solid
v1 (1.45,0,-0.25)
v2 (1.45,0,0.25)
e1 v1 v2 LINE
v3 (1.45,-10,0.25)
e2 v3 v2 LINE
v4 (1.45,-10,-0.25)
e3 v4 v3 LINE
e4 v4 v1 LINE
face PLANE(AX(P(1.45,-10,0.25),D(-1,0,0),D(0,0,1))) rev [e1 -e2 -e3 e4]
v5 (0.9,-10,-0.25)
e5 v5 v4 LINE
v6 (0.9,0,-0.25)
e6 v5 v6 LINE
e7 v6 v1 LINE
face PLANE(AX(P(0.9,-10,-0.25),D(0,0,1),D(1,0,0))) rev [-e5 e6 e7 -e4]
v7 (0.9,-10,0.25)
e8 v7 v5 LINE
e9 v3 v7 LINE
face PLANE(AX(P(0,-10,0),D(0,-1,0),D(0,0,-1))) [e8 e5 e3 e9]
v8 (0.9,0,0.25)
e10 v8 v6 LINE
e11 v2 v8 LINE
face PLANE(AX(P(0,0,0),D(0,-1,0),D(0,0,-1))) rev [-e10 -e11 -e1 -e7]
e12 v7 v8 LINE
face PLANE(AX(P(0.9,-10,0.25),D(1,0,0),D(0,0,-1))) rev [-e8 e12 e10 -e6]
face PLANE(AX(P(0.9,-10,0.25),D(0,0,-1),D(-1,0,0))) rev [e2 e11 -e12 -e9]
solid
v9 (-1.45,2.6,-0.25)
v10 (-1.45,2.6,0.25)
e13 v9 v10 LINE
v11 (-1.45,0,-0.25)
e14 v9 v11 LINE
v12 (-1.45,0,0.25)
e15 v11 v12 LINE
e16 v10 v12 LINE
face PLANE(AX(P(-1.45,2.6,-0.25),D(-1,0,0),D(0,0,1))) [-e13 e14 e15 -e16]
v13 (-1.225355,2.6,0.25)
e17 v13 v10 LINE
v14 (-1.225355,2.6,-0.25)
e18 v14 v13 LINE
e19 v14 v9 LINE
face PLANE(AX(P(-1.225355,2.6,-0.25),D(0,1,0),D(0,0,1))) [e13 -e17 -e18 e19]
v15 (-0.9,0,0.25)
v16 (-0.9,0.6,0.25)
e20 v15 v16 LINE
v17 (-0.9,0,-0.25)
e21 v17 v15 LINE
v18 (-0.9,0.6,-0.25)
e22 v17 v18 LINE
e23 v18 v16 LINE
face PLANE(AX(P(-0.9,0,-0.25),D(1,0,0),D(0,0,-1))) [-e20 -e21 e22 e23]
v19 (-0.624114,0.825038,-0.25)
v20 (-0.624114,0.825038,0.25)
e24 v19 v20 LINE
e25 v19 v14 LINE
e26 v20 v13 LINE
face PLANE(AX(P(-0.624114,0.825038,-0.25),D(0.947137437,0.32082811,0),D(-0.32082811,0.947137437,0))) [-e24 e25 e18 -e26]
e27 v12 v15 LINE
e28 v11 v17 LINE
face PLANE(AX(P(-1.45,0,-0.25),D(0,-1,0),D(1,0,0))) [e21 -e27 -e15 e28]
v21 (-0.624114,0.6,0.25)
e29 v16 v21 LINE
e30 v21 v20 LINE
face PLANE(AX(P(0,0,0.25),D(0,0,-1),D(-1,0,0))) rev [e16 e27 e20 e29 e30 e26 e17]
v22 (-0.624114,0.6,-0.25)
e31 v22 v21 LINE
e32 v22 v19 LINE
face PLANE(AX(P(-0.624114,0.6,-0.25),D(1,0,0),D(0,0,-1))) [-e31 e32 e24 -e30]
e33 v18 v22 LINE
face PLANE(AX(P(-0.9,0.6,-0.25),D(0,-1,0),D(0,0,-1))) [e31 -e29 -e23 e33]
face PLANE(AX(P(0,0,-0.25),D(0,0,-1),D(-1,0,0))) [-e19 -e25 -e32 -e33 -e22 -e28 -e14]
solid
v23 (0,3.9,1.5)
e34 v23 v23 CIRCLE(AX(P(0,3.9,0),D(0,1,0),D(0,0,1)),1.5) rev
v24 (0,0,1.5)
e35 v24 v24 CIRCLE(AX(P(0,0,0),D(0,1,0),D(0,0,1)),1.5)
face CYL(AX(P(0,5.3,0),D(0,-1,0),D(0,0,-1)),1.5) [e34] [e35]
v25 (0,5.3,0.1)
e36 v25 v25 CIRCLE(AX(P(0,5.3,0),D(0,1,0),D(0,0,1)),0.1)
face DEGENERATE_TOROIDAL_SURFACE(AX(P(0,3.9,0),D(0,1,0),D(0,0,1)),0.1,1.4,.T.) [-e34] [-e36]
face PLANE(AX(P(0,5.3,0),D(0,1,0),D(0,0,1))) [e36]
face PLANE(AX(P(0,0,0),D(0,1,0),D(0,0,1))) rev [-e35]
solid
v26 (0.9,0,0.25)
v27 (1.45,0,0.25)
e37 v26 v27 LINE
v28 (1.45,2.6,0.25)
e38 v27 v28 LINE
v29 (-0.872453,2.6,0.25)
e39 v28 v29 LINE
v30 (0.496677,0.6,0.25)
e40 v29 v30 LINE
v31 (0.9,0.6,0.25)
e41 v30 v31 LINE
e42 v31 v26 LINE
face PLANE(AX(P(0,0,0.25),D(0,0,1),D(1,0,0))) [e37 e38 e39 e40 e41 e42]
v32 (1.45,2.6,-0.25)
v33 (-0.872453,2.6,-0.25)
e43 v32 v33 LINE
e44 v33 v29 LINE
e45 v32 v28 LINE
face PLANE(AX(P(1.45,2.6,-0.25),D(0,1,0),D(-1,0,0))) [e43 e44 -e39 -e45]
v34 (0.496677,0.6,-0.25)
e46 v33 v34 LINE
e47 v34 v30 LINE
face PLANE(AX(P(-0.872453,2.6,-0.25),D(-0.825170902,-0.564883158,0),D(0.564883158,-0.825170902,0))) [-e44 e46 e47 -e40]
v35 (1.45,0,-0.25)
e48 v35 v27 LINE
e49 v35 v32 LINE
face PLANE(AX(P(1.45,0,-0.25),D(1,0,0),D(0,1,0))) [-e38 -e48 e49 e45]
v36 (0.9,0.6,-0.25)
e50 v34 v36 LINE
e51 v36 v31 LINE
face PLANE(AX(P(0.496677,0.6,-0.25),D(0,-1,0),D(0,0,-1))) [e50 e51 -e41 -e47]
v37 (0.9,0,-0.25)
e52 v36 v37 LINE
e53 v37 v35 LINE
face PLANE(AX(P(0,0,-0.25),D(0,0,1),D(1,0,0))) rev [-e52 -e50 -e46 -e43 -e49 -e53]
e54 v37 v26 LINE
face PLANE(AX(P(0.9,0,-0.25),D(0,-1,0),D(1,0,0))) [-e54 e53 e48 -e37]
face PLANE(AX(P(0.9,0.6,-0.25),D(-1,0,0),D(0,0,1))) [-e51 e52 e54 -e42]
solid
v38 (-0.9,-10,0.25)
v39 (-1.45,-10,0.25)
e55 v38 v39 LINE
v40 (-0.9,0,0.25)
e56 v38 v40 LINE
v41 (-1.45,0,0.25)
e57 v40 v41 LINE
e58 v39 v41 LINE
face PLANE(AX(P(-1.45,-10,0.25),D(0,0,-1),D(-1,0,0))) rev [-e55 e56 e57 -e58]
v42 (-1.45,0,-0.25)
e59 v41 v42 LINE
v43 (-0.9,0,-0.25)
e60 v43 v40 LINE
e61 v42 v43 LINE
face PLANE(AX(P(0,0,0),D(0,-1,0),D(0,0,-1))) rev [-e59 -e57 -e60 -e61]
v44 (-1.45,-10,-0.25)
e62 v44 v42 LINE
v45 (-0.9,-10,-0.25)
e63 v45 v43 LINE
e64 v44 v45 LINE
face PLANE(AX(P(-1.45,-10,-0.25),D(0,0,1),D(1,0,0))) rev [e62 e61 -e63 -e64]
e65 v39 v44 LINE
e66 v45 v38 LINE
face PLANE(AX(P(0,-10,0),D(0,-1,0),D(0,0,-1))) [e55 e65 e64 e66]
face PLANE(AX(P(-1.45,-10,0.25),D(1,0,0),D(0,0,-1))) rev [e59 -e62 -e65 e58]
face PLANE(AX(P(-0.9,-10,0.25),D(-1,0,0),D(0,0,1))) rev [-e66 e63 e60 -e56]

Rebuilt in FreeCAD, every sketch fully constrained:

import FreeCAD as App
import Part
import Sketcher

V = App.Vector
Q = App.Units.Quantity


def edges_at(feature, points):
    """Names of the edges that pass closest to the given points."""
    edges = feature.Shape.Edges
    near = lambda p: min(range(len(edges)), key=lambda i: edges[i].distToShape(Part.Vertex(*p))[0])
    return sorted({f"Edge{near(p) + 1}" for p in points})

doc = App.newDocument("Part")
body = doc.addObject("PartDesign::Body", "Body")

sketch1 = body.newObject("Sketcher::SketchObject", "Sketch")
sketch1.AttachmentSupport = (doc.getObject("XZ_Plane"), [""])
sketch1.MapMode = "FlatFace"
sketch1.addGeometry(Part.Circle(V(0, 0, 0), V(0, 0, 1), 1.5), False)
sketch1.addConstraint(Sketcher.Constraint("Coincident", 0, 3, -1, 1))
sketch1.addConstraint(Sketcher.Constraint("Diameter", 0, Q("3 mm")))
pad1 = body.newObject("PartDesign::Pad", "Pad")
pad1.Profile = sketch1
pad1.Length = 5.3
pad1.Reversed = True
doc.recompute()

fillet = body.newObject("PartDesign::Fillet", "Fillet")
fillet.Base = (pad1, edges_at(pad1, [(-1.5, 5.3, 0)]))
fillet.Radius = 1.4
body2 = doc.addObject("PartDesign::Body", "Body001")

sketch2 = body2.newObject("Sketcher::SketchObject", "Sketch001")
sketch2.AttachmentSupport = (doc.getObject("XY_Plane001"), [""])
sketch2.MapMode = "FlatFace"
sketch2.addGeometry(Part.LineSegment(V(-1.45, 2.6, 0), V(-1.45, 0, 0)), False)
sketch2.addGeometry(Part.LineSegment(V(-1.45, 0, 0), V(-0.9, 0, 0)), False)
sketch2.addGeometry(Part.LineSegment(V(-0.9, 0, 0), V(-0.9, 0.6, 0)), False)
sketch2.addGeometry(Part.LineSegment(V(-0.9, 0.6, 0), V(-0.624114, 0.6, 0)), False)
sketch2.addGeometry(Part.LineSegment(V(-0.624114, 0.6, 0), V(-0.624114, 0.825038, 0)), False)
sketch2.addGeometry(Part.LineSegment(V(-0.624114, 0.825038, 0), V(-1.225355, 2.6, 0)), False)
sketch2.addGeometry(Part.LineSegment(V(-1.225355, 2.6, 0), V(-1.45, 2.6, 0)), False)
sketch2.addConstraint(Sketcher.Constraint("Coincident", 0, 2, 1, 1))
sketch2.addConstraint(Sketcher.Constraint("Coincident", 1, 2, 2, 1))
sketch2.addConstraint(Sketcher.Constraint("Coincident", 2, 2, 3, 1))
sketch2.addConstraint(Sketcher.Constraint("Coincident", 3, 2, 4, 1))
sketch2.addConstraint(Sketcher.Constraint("Coincident", 4, 2, 5, 1))
sketch2.addConstraint(Sketcher.Constraint("Coincident", 5, 2, 6, 1))
sketch2.addConstraint(Sketcher.Constraint("Coincident", 6, 2, 0, 1))
sketch2.addConstraint(Sketcher.Constraint("Vertical", 0))
sketch2.addConstraint(Sketcher.Constraint("Horizontal", 1))
sketch2.addConstraint(Sketcher.Constraint("Vertical", 2))
sketch2.addConstraint(Sketcher.Constraint("Horizontal", 3))
sketch2.addConstraint(Sketcher.Constraint("Vertical", 4))
sketch2.addConstraint(Sketcher.Constraint("Horizontal", 6))
sketch2.addConstraint(Sketcher.Constraint("PointOnObject", 0, 2, -1))
sketch2.addConstraint(Sketcher.Constraint("DistanceY", 0, 2, 0, 1, Q("2.6 mm")))
sketch2.addConstraint(Sketcher.Constraint("DistanceY", 2, 1, 2, 2, Q("0.6 mm")))
sketch2.addConstraint(Sketcher.Constraint("DistanceX", 1, 1, 1, 2, Q("0.55 mm")))
sketch2.addConstraint(Sketcher.Constraint("DistanceX", 1, 2, -1, 1, Q("0.9 mm")))
sketch2.addConstraint(Sketcher.Constraint("Distance", 5, Q("1.874028 mm")))
sketch2.addConstraint(Sketcher.Constraint("DistanceX", 3, 1, 3, 2, Q("0.275886 mm")))
sketch2.addConstraint(Sketcher.Constraint("DistanceX", 6, 2, 6, 1, Q("0.224645 mm")))
pad2 = body2.newObject("PartDesign::Pad", "Pad001")
pad2.Profile = sketch2
pad2.Type = "TwoLengths"
pad2.Length = 0.25
pad2.Length2 = 0.25
body3 = doc.addObject("PartDesign::Body", "Body002")

sketch3 = body3.newObject("Sketcher::SketchObject", "Sketch002")
sketch3.AttachmentSupport = (doc.getObject("XY_Plane002"), [""])
sketch3.MapMode = "FlatFace"
sketch3.addGeometry(Part.LineSegment(V(1.45, 2.6, 0), V(-0.872453, 2.6, 0)), False)
sketch3.addGeometry(Part.LineSegment(V(-0.872453, 2.6, 0), V(0.496677, 0.6, 0)), False)
sketch3.addGeometry(Part.LineSegment(V(0.496677, 0.6, 0), V(0.9, 0.6, 0)), False)
sketch3.addGeometry(Part.LineSegment(V(0.9, 0.6, 0), V(0.9, 0, 0)), False)
sketch3.addGeometry(Part.LineSegment(V(0.9, 0, 0), V(1.45, 0, 0)), False)
sketch3.addGeometry(Part.LineSegment(V(1.45, 0, 0), V(1.45, 2.6, 0)), False)
sketch3.addConstraint(Sketcher.Constraint("Coincident", 0, 2, 1, 1))
sketch3.addConstraint(Sketcher.Constraint("Coincident", 1, 2, 2, 1))
sketch3.addConstraint(Sketcher.Constraint("Coincident", 2, 2, 3, 1))
sketch3.addConstraint(Sketcher.Constraint("Coincident", 3, 2, 4, 1))
sketch3.addConstraint(Sketcher.Constraint("Coincident", 4, 2, 5, 1))
sketch3.addConstraint(Sketcher.Constraint("Coincident", 5, 2, 0, 1))
sketch3.addConstraint(Sketcher.Constraint("Horizontal", 0))
sketch3.addConstraint(Sketcher.Constraint("Horizontal", 2))
sketch3.addConstraint(Sketcher.Constraint("Vertical", 3))
sketch3.addConstraint(Sketcher.Constraint("Horizontal", 4))
sketch3.addConstraint(Sketcher.Constraint("Vertical", 5))
sketch3.addConstraint(Sketcher.Constraint("PointOnObject", 3, 2, -1))
sketch3.addConstraint(Sketcher.Constraint("DistanceY", 3, 2, 3, 1, Q("0.6 mm")))
sketch3.addConstraint(Sketcher.Constraint("DistanceY", 5, 1, 5, 2, Q("2.6 mm")))
sketch3.addConstraint(Sketcher.Constraint("DistanceX", 4, 1, 4, 2, Q("0.55 mm")))
sketch3.addConstraint(Sketcher.Constraint("DistanceX", -1, 1, 2, 2, Q("0.9 mm")))
sketch3.addConstraint(Sketcher.Constraint("Distance", 1, Q("2.42374 mm")))
sketch3.addConstraint(Sketcher.Constraint("DistanceX", 0, 2, 0, 1, Q("2.322453 mm")))
pad3 = body3.newObject("PartDesign::Pad", "Pad002")
pad3.Profile = sketch3
pad3.Type = "TwoLengths"
pad3.Length = 0.25
pad3.Length2 = 0.25
body4 = doc.addObject("PartDesign::Body", "Body003")

sketch4 = body4.newObject("Sketcher::SketchObject", "Sketch003")
sketch4.AttachmentSupport = (doc.getObject("XZ_Plane003"), [""])
sketch4.MapMode = "FlatFace"
sketch4.addGeometry(Part.LineSegment(V(-0.9, -0.25, 0), V(-0.9, 0.25, 0)), False)
sketch4.addGeometry(Part.LineSegment(V(-0.9, 0.25, 0), V(-1.45, 0.25, 0)), False)
sketch4.addGeometry(Part.LineSegment(V(-1.45, 0.25, 0), V(-1.45, -0.25, 0)), False)
sketch4.addGeometry(Part.LineSegment(V(-1.45, -0.25, 0), V(-0.9, -0.25, 0)), False)
sketch4.addConstraint(Sketcher.Constraint("Coincident", 0, 2, 1, 1))
sketch4.addConstraint(Sketcher.Constraint("Coincident", 1, 2, 2, 1))
sketch4.addConstraint(Sketcher.Constraint("Coincident", 2, 2, 3, 1))
sketch4.addConstraint(Sketcher.Constraint("Coincident", 3, 2, 0, 1))
sketch4.addConstraint(Sketcher.Constraint("Vertical", 0))
sketch4.addConstraint(Sketcher.Constraint("Horizontal", 1))
sketch4.addConstraint(Sketcher.Constraint("Vertical", 2))
sketch4.addConstraint(Sketcher.Constraint("Horizontal", 3))
sketch4.addConstraint(Sketcher.Constraint("DistanceY", 0, 1, 0, 2, Q("0.5 mm")))
sketch4.addConstraint(Sketcher.Constraint("DistanceX", 1, 2, 1, 1, Q("0.55 mm")))
sketch4.addConstraint(Sketcher.Constraint("DistanceX", 0, 2, -1, 1, Q("0.9 mm")))
sketch4.addConstraint(Sketcher.Constraint("DistanceY", -1, 1, 0, 2, Q("0.25 mm")))
pad4 = body4.newObject("PartDesign::Pad", "Pad003")
pad4.Profile = sketch4
pad4.Length = 10
body5 = doc.addObject("PartDesign::Body", "Body004")

sketch5 = body5.newObject("Sketcher::SketchObject", "Sketch004")
sketch5.AttachmentSupport = (doc.getObject("XZ_Plane004"), [""])
sketch5.MapMode = "FlatFace"
sketch5.addGeometry(Part.LineSegment(V(1.45, -0.25, 0), V(1.45, 0.25, 0)), False)
sketch5.addGeometry(Part.LineSegment(V(1.45, 0.25, 0), V(0.9, 0.25, 0)), False)
sketch5.addGeometry(Part.LineSegment(V(0.9, 0.25, 0), V(0.9, -0.25, 0)), False)
sketch5.addGeometry(Part.LineSegment(V(0.9, -0.25, 0), V(1.45, -0.25, 0)), False)
sketch5.addConstraint(Sketcher.Constraint("Coincident", 0, 2, 1, 1))
sketch5.addConstraint(Sketcher.Constraint("Coincident", 1, 2, 2, 1))
sketch5.addConstraint(Sketcher.Constraint("Coincident", 2, 2, 3, 1))
sketch5.addConstraint(Sketcher.Constraint("Coincident", 3, 2, 0, 1))
sketch5.addConstraint(Sketcher.Constraint("Vertical", 0))
sketch5.addConstraint(Sketcher.Constraint("Horizontal", 1))
sketch5.addConstraint(Sketcher.Constraint("Vertical", 2))
sketch5.addConstraint(Sketcher.Constraint("Horizontal", 3))
sketch5.addConstraint(Sketcher.Constraint("DistanceY", 0, 1, 0, 2, Q("0.5 mm")))
sketch5.addConstraint(Sketcher.Constraint("DistanceX", 1, 2, 1, 1, Q("0.55 mm")))
sketch5.addConstraint(Sketcher.Constraint("DistanceX", -1, 1, 1, 2, Q("0.9 mm")))
sketch5.addConstraint(Sketcher.Constraint("DistanceY", -1, 1, 0, 2, Q("0.25 mm")))
pad5 = body5.newObject("PartDesign::Pad", "Pad004")
pad5.Profile = sketch5
pad5.Length = 10

doc.recompute()
